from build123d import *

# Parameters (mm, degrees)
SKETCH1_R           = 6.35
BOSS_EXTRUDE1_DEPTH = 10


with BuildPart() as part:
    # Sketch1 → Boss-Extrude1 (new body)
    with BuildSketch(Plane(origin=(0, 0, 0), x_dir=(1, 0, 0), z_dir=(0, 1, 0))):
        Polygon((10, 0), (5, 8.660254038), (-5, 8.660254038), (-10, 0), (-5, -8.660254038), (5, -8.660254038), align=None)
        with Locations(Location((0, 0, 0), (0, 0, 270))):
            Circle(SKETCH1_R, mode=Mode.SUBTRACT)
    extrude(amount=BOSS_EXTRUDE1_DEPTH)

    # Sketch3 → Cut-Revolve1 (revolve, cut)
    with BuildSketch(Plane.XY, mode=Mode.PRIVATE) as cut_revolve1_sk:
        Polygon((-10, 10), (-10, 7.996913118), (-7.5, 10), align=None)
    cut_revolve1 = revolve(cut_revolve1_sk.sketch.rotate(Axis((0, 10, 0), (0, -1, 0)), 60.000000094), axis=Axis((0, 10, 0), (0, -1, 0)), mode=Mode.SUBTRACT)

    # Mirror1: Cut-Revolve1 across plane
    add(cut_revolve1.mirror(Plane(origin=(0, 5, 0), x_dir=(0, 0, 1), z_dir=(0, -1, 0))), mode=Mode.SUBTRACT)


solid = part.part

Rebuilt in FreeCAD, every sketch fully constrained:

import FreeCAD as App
import Part
import Sketcher
Q = App.Units.Quantity


def add_polygon(sketch, points):
    """Adds a closed chain of lines whose ends are joined by coincident constraints."""
    first, n = sketch.GeometryCount, len(points)
    for a, b in zip(points, points[1:] + points[:1]):
        sketch.addGeometry(Part.LineSegment(App.Vector(*a, 0), App.Vector(*b, 0)), False)
    for i in range(n):
        sketch.addConstraint(Sketcher.Constraint("Coincident", first + i, 2, first + (i + 1) % n, 1))

doc = App.newDocument("Part")
body = doc.addObject("PartDesign::Body", "Body")

# Sketch on XZ plane
sketch1 = body.newObject("Sketcher::SketchObject", "Sketch")
sketch1.AttachmentSupport = (doc.getObject("XZ_Plane"), [""])
sketch1.MapMode = "FlatFace"
add_polygon(sketch1, [(10, 0), (5, -9), (-5, -9), (-10, 0), (-5, 9), (5, 9)])  # lines 0-5
sketch1.addGeometry(Part.Circle(App.Vector(0, 0, 0), App.Vector(0, 0, 1), 6), False)  # 6
sketch1.addConstraint(Sketcher.Constraint("Horizontal", 1))
sketch1.addConstraint(Sketcher.Constraint("Horizontal", 4))
sketch1.addConstraint(Sketcher.Constraint("Coincident", 6, 3, -1, 1))
sketch1.addConstraint(Sketcher.Constraint("Symmetric", 0, 2, 3, 2, -1, 1))
sketch1.addConstraint(Sketcher.Constraint("Symmetric", 2, 2, 5, 2, -1, 1))
sketch1.addConstraint(Sketcher.Constraint("PointOnObject", 2, 2, -1))
sketch1.addConstraint(Sketcher.Constraint("Parallel", 2, 5))
sketch1.addConstraint(Sketcher.Constraint("Vertical", 1, 2, 3, 2))
sketch1.addConstraint(Sketcher.Constraint("Diameter", 6, Q("12.7 mm")))
sketch1.addConstraint(Sketcher.Constraint("DistanceX", 1, 2, 1, 1, Q("10 mm")))
sketch1.addConstraint(Sketcher.Constraint("Angle", 0, Q("-120 deg")))
sketch1.addConstraint(Sketcher.Constraint("Distance", 0, Q("10 mm")))
pad1 = body.newObject("PartDesign::Pad", "Pad")
pad1.Profile = sketch1
pad1.Length = 10
pad1.Reversed = True

# Sketch on XY plane
sketch2 = body.newObject("Sketcher::SketchObject", "Sketch001")
sketch2.AttachmentSupport = (doc.getObject("XY_Plane"), [""])
sketch2.MapMode = "FlatFace"
add_polygon(sketch2, [(-10, 10), (-10, 8), (-7.5, 10)])  # lines 0-2
sketch2.addConstraint(Sketcher.Constraint("Vertical", 0))
sketch2.addConstraint(Sketcher.Constraint("Horizontal", 2))
sketch2.addConstraint(Sketcher.Constraint("DistanceX", 2, 2, 2, 1, Q("2.5 mm")))
sketch2.addConstraint(Sketcher.Constraint("DistanceX", 0, 2, -1, 1, Q("10 mm")))
sketch2.addConstraint(Sketcher.Constraint("DistanceY", -1, 1, 1, 2, Q("10 mm")))
sketch2.addConstraint(Sketcher.Constraint("Distance", 1, Q("3.203491 mm")))
groove = body.newObject("PartDesign::Groove", "Groove")
groove.Profile = sketch2
groove.ReferenceAxis = (sketch2, ["V_Axis"])
groove.Angle = 360
doc.recompute()

datumplane = body.newObject("PartDesign::Plane", "DatumPlane")
datumplane.AttachmentSupport = (doc.getObject("XZ_Plane"), [""])
datumplane.MapMode = "FlatFace"
datumplane.AttachmentOffset = App.Placement(App.Vector(0, 0, -5), App.Rotation())
mirrored = body.newObject("PartDesign::Mirrored", "Mirrored")
mirrored.Originals = [groove]
mirrored.MirrorPlane = (datumplane, [""])
body.Tip = mirrored

doc.recompute()
